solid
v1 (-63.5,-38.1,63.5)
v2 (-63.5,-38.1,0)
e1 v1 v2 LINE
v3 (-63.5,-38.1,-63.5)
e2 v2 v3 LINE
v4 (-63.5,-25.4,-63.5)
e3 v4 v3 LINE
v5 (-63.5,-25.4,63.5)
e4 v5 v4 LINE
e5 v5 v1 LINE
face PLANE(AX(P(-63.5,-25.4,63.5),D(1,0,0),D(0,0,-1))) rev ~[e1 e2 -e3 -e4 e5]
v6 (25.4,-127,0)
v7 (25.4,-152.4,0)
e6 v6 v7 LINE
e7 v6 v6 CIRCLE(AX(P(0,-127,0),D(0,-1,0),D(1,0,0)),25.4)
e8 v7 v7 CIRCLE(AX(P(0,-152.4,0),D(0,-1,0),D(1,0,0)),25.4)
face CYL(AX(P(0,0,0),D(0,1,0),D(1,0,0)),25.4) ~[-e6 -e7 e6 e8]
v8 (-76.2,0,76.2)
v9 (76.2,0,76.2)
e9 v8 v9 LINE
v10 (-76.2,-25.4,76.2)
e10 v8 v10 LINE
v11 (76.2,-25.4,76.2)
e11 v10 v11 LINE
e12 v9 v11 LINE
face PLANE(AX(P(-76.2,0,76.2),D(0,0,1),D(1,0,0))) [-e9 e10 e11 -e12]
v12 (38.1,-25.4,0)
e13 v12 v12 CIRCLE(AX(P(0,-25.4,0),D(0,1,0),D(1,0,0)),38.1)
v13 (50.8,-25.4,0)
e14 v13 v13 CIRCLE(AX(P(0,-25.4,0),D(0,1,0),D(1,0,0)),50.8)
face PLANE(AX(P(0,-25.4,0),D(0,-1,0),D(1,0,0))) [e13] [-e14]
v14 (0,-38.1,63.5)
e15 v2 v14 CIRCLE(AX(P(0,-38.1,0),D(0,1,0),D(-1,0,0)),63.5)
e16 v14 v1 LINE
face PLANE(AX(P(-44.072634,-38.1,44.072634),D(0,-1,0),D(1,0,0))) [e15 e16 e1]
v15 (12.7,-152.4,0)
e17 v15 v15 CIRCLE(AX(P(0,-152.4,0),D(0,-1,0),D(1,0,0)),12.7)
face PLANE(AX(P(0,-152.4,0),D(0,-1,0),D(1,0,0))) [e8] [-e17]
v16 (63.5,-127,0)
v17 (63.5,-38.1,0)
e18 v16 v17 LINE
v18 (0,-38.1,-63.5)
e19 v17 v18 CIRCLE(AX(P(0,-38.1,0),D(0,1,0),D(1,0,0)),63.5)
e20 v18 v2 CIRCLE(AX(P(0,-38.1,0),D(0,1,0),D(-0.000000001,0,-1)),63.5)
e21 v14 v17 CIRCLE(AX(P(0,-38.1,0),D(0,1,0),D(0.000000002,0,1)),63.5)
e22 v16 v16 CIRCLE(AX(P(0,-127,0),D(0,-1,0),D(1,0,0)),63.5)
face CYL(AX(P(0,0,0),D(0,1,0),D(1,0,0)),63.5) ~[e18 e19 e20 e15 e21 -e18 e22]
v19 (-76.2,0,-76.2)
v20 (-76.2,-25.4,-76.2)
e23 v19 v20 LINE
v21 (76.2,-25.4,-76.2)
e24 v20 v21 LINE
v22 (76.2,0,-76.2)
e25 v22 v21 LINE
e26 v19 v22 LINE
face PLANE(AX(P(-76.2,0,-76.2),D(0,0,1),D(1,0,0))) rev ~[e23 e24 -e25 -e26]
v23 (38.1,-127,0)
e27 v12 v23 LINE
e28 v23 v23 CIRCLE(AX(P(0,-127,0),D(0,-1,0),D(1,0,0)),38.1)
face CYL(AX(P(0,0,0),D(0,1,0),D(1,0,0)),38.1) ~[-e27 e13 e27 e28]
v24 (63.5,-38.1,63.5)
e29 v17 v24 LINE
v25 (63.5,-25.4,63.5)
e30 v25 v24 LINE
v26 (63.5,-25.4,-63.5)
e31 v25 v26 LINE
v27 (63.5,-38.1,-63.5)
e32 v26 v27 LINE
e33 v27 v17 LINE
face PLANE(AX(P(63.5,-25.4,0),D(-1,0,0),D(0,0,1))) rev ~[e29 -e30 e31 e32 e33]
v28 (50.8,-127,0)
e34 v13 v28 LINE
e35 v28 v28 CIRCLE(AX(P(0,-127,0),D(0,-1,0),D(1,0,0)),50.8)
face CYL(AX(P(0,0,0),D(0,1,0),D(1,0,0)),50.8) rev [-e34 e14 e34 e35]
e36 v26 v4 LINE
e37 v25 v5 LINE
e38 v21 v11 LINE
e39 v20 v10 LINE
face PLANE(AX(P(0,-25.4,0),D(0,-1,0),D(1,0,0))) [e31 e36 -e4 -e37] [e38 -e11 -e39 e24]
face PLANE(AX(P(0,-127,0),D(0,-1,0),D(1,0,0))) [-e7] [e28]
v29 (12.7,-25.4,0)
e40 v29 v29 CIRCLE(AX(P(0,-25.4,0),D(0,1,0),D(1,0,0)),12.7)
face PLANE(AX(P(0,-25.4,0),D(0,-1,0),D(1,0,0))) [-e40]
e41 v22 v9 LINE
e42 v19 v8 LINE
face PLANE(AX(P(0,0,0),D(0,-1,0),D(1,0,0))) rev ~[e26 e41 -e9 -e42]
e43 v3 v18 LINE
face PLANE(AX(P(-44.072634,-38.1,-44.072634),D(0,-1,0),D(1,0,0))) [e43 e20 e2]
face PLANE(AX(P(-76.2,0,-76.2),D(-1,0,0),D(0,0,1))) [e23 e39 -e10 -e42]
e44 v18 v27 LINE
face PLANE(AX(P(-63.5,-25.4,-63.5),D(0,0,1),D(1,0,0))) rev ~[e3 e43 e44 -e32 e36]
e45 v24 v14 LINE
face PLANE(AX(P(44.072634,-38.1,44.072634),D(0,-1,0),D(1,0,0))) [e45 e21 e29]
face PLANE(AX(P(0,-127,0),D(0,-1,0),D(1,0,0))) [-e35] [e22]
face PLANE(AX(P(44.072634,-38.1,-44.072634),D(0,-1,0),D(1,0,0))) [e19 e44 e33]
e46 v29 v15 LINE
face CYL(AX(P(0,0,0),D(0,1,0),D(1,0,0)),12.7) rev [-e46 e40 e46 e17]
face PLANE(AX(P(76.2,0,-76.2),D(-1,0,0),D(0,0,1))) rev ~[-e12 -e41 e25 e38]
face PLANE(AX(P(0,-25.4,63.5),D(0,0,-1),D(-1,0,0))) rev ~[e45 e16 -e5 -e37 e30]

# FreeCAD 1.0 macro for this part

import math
import FreeCAD as App
import Part
import Sketcher
Q = App.Units.Quantity

doc = App.newDocument("Part")
params = doc.addObject("Spreadsheet::Sheet", "Params")
for row, (alias, value) in enumerate([
    ("sketch1_diameter", "5 in"),
    ("sketch1_diameter2", "3 in"),
    ("pad1_length", "0.5 in"),
    ("sketch2_diameter", "3 in"),
    ("sketch2_diameter2", "2 in"),
    ("pad2_length", "5 in"),
    ("sketch3_diameter", "2 in"),
    ("sketch3_diameter2", "1 in"),
    ("pad3_length", "6 in"),
    ("sketch4_diameter", "5 in"),
    ("sketch4_diameter2", "4 in"),
    ("pad4_length", "5 in"),
    ("sketch5_width", "6 in"),
    ("pad5_length", "1 in"),
    ("sketch6_radius", "2.5 in"),
    ("pad6_length", "0.5 in"),
], start=1):
    params.set(f"A{row}", alias)
    params.set(f"B{row}", "=" + value)
    params.setAlias(f"B{row}", alias)

body = doc.addObject("PartDesign::Body", "Body")

sketch1 = body.newObject("Sketcher::SketchObject", "Sketch")
sketch1.AttachmentSupport = (doc.getObject("XZ_Plane"), [""])
sketch1.MapMode = "FlatFace"
sketch1.addGeometry(Part.Circle(App.Vector(0, 0, 0), App.Vector(0, 0, 1), 64), False)
sketch1.addGeometry(Part.Circle(App.Vector(0, 0, 0), App.Vector(0, 0, 1), 38), False)
sketch1.addConstraint(Sketcher.Constraint("Coincident", 0, 3, -1, 1))
sketch1.addConstraint(Sketcher.Constraint("Coincident", 1, 3, -1, 1))
sketch1.addConstraint(Sketcher.Constraint("Diameter", 0, Q("5 in")))
sketch1.addConstraint(Sketcher.Constraint("Diameter", 1, Q("3 in")))
sketch1.setExpression("Constraints[2]", "Params.sketch1_diameter")
sketch1.setExpression("Constraints[3]", "Params.sketch1_diameter2")
pad1 = body.newObject("PartDesign::Pad", "Pad")
pad1.Profile = sketch1
pad1.setExpression("Length", "Params.pad1_length")

sketch2 = body.newObject("Sketcher::SketchObject", "Sketch001")
sketch2.AttachmentSupport = (doc.getObject("XZ_Plane"), [""])
sketch2.MapMode = "FlatFace"
sketch2.addGeometry(Part.Circle(App.Vector(0, 0, 0), App.Vector(0, 0, 1), 38), False)
sketch2.addGeometry(Part.Circle(App.Vector(0, 0, 0), App.Vector(0, 0, 1), 25), False)
sketch2.addConstraint(Sketcher.Constraint("Coincident", 0, 3, -1, 1))
sketch2.addConstraint(Sketcher.Constraint("Coincident", 1, 3, -1, 1))
sketch2.addConstraint(Sketcher.Constraint("Diameter", 0, Q("3 in")))
sketch2.addConstraint(Sketcher.Constraint("Diameter", 1, Q("2 in")))
sketch2.setExpression("Constraints[2]", "Params.sketch2_diameter")
sketch2.setExpression("Constraints[3]", "Params.sketch2_diameter2")
pad2 = body.newObject("PartDesign::Pad", "Pad001")
pad2.Profile = sketch2
pad2.setExpression("Length", "Params.pad2_length")

sketch3 = body.newObject("Sketcher::SketchObject", "Sketch002")
sketch3.AttachmentSupport = (doc.getObject("XZ_Plane"), [""])
sketch3.MapMode = "FlatFace"
sketch3.addGeometry(Part.Circle(App.Vector(0, 0, 0), App.Vector(0, 0, 1), 25), False)
sketch3.addGeometry(Part.Circle(App.Vector(0, 0, 0), App.Vector(0, 0, 1), 13), False)
sketch3.addConstraint(Sketcher.Constraint("Coincident", 0, 3, -1, 1))
sketch3.addConstraint(Sketcher.Constraint("Coincident", 1, 3, -1, 1))
sketch3.addConstraint(Sketcher.Constraint("Diameter", 0, Q("2 in")))
sketch3.addConstraint(Sketcher.Constraint("Diameter", 1, Q("1 in")))
sketch3.setExpression("Constraints[2]", "Params.sketch3_diameter")
sketch3.setExpression("Constraints[3]", "Params.sketch3_diameter2")
pad3 = body.newObject("PartDesign::Pad", "Pad002")
pad3.Profile = sketch3
pad3.setExpression("Length", "Params.pad3_length")

sketch4 = body.newObject("Sketcher::SketchObject", "Sketch003")
sketch4.AttachmentSupport = (doc.getObject("XZ_Plane"), [""])
sketch4.MapMode = "FlatFace"
sketch4.addGeometry(Part.Circle(App.Vector(0, 0, 0), App.Vector(0, 0, 1), 64), False)
sketch4.addGeometry(Part.Circle(App.Vector(0, 0, 0), App.Vector(0, 0, 1), 51), False)
sketch4.addConstraint(Sketcher.Constraint("Coincident", 0, 3, -1, 1))
sketch4.addConstraint(Sketcher.Constraint("Coincident", 1, 3, -1, 1))
sketch4.addConstraint(Sketcher.Constraint("Diameter", 0, Q("5 in")))
sketch4.addConstraint(Sketcher.Constraint("Diameter", 1, Q("4 in")))
sketch4.setExpression("Constraints[2]", "Params.sketch4_diameter")
sketch4.setExpression("Constraints[3]", "Params.sketch4_diameter2")
pad4 = body.newObject("PartDesign::Pad", "Pad003")
pad4.Profile = sketch4
pad4.setExpression("Length", "Params.pad4_length")

sketch5 = body.newObject("Sketcher::SketchObject", "Sketch004")
sketch5.AttachmentSupport = (doc.getObject("XZ_Plane"), [""])
sketch5.MapMode = "FlatFace"
sketch5.addGeometry(Part.LineSegment(App.Vector(-76, 76, 0), App.Vector(-76, -76, 0)), False)
sketch5.addGeometry(Part.LineSegment(App.Vector(-76, -76, 0), App.Vector(76, -76, 0)), False)
sketch5.addGeometry(Part.LineSegment(App.Vector(76, -76, 0), App.Vector(76, 76, 0)), False)
sketch5.addGeometry(Part.LineSegment(App.Vector(76, 76, 0), App.Vector(-76, 76, 0)), False)
sketch5.addConstraint(Sketcher.Constraint("Coincident", 0, 2, 1, 1))
sketch5.addConstraint(Sketcher.Constraint("Coincident", 1, 2, 2, 1))
sketch5.addConstraint(Sketcher.Constraint("Coincident", 2, 2, 3, 1))
sketch5.addConstraint(Sketcher.Constraint("Coincident", 3, 2, 0, 1))
sketch5.addConstraint(Sketcher.Constraint("Vertical", 0))
sketch5.addConstraint(Sketcher.Constraint("Horizontal", 1))
sketch5.addConstraint(Sketcher.Constraint("Vertical", 2))
sketch5.addConstraint(Sketcher.Constraint("Horizontal", 3))
sketch5.addConstraint(Sketcher.Constraint("Symmetric", 0, 2, 2, 2, -1, 1))
sketch5.addConstraint(Sketcher.Constraint("Equal", 3, 0))
sketch5.addConstraint(Sketcher.Constraint("DistanceX", 1, 1, 1, 2, Q("6 in")))
sketch5.setExpression("Constraints[10]", "Params.sketch5_width")
pad5 = body.newObject("PartDesign::Pad", "Pad004")
pad5.Profile = sketch5
pad5.setExpression("Length", "Params.pad5_length")

sketch6 = body.newObject("Sketcher::SketchObject", "Sketch005")
sketch6.AttachmentSupport = (doc.getObject("XZ_Plane"), [""])
sketch6.MapMode = "FlatFace"
sketch6.AttachmentOffset = App.Placement(App.Vector(0, 0, 1 * 25.4), App.Rotation())
sketch6.addGeometry(Part.LineSegment(App.Vector(0, 64, 0), App.Vector(-64, 64, 0)), False)
sketch6.addGeometry(Part.LineSegment(App.Vector(-64, 64, 0), App.Vector(-64, 0, 0)), False)
sketch6.addGeometry(Part.ArcOfCircle(Part.Circle(App.Vector(0, 0, 0), App.Vector(0, 0, 1), 64), math.radians(90), math.radians(180)), False)
sketch6.addGeometry(Part.ArcOfCircle(Part.Circle(App.Vector(0, 0, 0), App.Vector(0, 0, 1), 64), math.radians(180), math.radians(270)), False)
sketch6.addGeometry(Part.LineSegment(App.Vector(-64, 0, 0), App.Vector(-64, -64, 0)), False)
sketch6.addGeometry(Part.LineSegment(App.Vector(-64, -64, 0), App.Vector(0, -64, 0)), False)
sketch6.addGeometry(Part.LineSegment(App.Vector(64, 64, 0), App.Vector(0, 64, 0)), False)
sketch6.addGeometry(Part.ArcOfCircle(Part.Circle(App.Vector(0, 0, 0), App.Vector(0, 0, 1), 64), math.radians(0), math.radians(90)), False)
sketch6.addGeometry(Part.LineSegment(App.Vector(64, 0, 0), App.Vector(64, 64, 0)), False)
sketch6.addGeometry(Part.LineSegment(App.Vector(64, -64, 0), App.Vector(64, 0, 0)), False)
sketch6.addGeometry(Part.ArcOfCircle(Part.Circle(App.Vector(0, 0, 0), App.Vector(0, 0, 1), 64), math.radians(-90), math.radians(0)), False)
sketch6.addGeometry(Part.LineSegment(App.Vector(0, -64, 0), App.Vector(64, -64, 0)), False)
sketch6.addConstraint(Sketcher.Constraint("Coincident", 0, 2, 1, 1))
sketch6.addConstraint(Sketcher.Constraint("Tangent", 1, 2, 2, 2))
sketch6.addConstraint(Sketcher.Constraint("Tangent", 2, 1, 0, 1))
sketch6.addConstraint(Sketcher.Constraint("Tangent", 3, 1, 4, 1))
sketch6.addConstraint(Sketcher.Constraint("Coincident", 4, 2, 5, 1))
sketch6.addConstraint(Sketcher.Constraint("Tangent", 5, 2, 3, 2))
sketch6.addConstraint(Sketcher.Constraint("Tangent", 6, 2, 7, 2))
sketch6.addConstraint(Sketcher.Constraint("Tangent", 7, 1, 8, 1))
sketch6.addConstraint(Sketcher.Constraint("Coincident", 8, 2, 6, 1))
sketch6.addConstraint(Sketcher.Constraint("Tangent", 9, 2, 10, 2))
sketch6.addConstraint(Sketcher.Constraint("Tangent", 10, 1, 11, 1))
sketch6.addConstraint(Sketcher.Constraint("Coincident", 11, 2, 9, 1))
sketch6.addConstraint(Sketcher.Constraint("Horizontal", 0))
sketch6.addConstraint(Sketcher.Constraint("Vertical", 1))
sketch6.addConstraint(Sketcher.Constraint("Vertical", 4))
sketch6.addConstraint(Sketcher.Constraint("Horizontal", 5))
sketch6.addConstraint(Sketcher.Constraint("Horizontal", 6))
sketch6.addConstraint(Sketcher.Constraint("Vertical", 8))
sketch6.addConstraint(Sketcher.Constraint("Vertical", 9))
sketch6.addConstraint(Sketcher.Constraint("Horizontal", 11))
sketch6.addConstraint(Sketcher.Constraint("Coincident", 2, 3, -1, 1))
sketch6.addConstraint(Sketcher.Constraint("Coincident", 3, 3, -1, 1))
sketch6.addConstraint(Sketcher.Constraint("Coincident", 7, 3, -1, 1))
sketch6.addConstraint(Sketcher.Constraint("Coincident", 10, 3, -1, 1))
sketch6.addConstraint(Sketcher.Constraint("Equal", 2, 3))
sketch6.addConstraint(Sketcher.Constraint("Equal", 3, 7))
sketch6.addConstraint(Sketcher.Constraint("Equal", 7, 10))
sketch6.addConstraint(Sketcher.Constraint("Radius", 2, Q("2.5 in")))
sketch6.setExpression("Constraints[27]", "Params.sketch6_radius")
pad6 = body.newObject("PartDesign::Pad", "Pad005")
pad6.Profile = sketch6
pad6.setExpression("Length", "Params.pad6_length")

doc.recompute()
